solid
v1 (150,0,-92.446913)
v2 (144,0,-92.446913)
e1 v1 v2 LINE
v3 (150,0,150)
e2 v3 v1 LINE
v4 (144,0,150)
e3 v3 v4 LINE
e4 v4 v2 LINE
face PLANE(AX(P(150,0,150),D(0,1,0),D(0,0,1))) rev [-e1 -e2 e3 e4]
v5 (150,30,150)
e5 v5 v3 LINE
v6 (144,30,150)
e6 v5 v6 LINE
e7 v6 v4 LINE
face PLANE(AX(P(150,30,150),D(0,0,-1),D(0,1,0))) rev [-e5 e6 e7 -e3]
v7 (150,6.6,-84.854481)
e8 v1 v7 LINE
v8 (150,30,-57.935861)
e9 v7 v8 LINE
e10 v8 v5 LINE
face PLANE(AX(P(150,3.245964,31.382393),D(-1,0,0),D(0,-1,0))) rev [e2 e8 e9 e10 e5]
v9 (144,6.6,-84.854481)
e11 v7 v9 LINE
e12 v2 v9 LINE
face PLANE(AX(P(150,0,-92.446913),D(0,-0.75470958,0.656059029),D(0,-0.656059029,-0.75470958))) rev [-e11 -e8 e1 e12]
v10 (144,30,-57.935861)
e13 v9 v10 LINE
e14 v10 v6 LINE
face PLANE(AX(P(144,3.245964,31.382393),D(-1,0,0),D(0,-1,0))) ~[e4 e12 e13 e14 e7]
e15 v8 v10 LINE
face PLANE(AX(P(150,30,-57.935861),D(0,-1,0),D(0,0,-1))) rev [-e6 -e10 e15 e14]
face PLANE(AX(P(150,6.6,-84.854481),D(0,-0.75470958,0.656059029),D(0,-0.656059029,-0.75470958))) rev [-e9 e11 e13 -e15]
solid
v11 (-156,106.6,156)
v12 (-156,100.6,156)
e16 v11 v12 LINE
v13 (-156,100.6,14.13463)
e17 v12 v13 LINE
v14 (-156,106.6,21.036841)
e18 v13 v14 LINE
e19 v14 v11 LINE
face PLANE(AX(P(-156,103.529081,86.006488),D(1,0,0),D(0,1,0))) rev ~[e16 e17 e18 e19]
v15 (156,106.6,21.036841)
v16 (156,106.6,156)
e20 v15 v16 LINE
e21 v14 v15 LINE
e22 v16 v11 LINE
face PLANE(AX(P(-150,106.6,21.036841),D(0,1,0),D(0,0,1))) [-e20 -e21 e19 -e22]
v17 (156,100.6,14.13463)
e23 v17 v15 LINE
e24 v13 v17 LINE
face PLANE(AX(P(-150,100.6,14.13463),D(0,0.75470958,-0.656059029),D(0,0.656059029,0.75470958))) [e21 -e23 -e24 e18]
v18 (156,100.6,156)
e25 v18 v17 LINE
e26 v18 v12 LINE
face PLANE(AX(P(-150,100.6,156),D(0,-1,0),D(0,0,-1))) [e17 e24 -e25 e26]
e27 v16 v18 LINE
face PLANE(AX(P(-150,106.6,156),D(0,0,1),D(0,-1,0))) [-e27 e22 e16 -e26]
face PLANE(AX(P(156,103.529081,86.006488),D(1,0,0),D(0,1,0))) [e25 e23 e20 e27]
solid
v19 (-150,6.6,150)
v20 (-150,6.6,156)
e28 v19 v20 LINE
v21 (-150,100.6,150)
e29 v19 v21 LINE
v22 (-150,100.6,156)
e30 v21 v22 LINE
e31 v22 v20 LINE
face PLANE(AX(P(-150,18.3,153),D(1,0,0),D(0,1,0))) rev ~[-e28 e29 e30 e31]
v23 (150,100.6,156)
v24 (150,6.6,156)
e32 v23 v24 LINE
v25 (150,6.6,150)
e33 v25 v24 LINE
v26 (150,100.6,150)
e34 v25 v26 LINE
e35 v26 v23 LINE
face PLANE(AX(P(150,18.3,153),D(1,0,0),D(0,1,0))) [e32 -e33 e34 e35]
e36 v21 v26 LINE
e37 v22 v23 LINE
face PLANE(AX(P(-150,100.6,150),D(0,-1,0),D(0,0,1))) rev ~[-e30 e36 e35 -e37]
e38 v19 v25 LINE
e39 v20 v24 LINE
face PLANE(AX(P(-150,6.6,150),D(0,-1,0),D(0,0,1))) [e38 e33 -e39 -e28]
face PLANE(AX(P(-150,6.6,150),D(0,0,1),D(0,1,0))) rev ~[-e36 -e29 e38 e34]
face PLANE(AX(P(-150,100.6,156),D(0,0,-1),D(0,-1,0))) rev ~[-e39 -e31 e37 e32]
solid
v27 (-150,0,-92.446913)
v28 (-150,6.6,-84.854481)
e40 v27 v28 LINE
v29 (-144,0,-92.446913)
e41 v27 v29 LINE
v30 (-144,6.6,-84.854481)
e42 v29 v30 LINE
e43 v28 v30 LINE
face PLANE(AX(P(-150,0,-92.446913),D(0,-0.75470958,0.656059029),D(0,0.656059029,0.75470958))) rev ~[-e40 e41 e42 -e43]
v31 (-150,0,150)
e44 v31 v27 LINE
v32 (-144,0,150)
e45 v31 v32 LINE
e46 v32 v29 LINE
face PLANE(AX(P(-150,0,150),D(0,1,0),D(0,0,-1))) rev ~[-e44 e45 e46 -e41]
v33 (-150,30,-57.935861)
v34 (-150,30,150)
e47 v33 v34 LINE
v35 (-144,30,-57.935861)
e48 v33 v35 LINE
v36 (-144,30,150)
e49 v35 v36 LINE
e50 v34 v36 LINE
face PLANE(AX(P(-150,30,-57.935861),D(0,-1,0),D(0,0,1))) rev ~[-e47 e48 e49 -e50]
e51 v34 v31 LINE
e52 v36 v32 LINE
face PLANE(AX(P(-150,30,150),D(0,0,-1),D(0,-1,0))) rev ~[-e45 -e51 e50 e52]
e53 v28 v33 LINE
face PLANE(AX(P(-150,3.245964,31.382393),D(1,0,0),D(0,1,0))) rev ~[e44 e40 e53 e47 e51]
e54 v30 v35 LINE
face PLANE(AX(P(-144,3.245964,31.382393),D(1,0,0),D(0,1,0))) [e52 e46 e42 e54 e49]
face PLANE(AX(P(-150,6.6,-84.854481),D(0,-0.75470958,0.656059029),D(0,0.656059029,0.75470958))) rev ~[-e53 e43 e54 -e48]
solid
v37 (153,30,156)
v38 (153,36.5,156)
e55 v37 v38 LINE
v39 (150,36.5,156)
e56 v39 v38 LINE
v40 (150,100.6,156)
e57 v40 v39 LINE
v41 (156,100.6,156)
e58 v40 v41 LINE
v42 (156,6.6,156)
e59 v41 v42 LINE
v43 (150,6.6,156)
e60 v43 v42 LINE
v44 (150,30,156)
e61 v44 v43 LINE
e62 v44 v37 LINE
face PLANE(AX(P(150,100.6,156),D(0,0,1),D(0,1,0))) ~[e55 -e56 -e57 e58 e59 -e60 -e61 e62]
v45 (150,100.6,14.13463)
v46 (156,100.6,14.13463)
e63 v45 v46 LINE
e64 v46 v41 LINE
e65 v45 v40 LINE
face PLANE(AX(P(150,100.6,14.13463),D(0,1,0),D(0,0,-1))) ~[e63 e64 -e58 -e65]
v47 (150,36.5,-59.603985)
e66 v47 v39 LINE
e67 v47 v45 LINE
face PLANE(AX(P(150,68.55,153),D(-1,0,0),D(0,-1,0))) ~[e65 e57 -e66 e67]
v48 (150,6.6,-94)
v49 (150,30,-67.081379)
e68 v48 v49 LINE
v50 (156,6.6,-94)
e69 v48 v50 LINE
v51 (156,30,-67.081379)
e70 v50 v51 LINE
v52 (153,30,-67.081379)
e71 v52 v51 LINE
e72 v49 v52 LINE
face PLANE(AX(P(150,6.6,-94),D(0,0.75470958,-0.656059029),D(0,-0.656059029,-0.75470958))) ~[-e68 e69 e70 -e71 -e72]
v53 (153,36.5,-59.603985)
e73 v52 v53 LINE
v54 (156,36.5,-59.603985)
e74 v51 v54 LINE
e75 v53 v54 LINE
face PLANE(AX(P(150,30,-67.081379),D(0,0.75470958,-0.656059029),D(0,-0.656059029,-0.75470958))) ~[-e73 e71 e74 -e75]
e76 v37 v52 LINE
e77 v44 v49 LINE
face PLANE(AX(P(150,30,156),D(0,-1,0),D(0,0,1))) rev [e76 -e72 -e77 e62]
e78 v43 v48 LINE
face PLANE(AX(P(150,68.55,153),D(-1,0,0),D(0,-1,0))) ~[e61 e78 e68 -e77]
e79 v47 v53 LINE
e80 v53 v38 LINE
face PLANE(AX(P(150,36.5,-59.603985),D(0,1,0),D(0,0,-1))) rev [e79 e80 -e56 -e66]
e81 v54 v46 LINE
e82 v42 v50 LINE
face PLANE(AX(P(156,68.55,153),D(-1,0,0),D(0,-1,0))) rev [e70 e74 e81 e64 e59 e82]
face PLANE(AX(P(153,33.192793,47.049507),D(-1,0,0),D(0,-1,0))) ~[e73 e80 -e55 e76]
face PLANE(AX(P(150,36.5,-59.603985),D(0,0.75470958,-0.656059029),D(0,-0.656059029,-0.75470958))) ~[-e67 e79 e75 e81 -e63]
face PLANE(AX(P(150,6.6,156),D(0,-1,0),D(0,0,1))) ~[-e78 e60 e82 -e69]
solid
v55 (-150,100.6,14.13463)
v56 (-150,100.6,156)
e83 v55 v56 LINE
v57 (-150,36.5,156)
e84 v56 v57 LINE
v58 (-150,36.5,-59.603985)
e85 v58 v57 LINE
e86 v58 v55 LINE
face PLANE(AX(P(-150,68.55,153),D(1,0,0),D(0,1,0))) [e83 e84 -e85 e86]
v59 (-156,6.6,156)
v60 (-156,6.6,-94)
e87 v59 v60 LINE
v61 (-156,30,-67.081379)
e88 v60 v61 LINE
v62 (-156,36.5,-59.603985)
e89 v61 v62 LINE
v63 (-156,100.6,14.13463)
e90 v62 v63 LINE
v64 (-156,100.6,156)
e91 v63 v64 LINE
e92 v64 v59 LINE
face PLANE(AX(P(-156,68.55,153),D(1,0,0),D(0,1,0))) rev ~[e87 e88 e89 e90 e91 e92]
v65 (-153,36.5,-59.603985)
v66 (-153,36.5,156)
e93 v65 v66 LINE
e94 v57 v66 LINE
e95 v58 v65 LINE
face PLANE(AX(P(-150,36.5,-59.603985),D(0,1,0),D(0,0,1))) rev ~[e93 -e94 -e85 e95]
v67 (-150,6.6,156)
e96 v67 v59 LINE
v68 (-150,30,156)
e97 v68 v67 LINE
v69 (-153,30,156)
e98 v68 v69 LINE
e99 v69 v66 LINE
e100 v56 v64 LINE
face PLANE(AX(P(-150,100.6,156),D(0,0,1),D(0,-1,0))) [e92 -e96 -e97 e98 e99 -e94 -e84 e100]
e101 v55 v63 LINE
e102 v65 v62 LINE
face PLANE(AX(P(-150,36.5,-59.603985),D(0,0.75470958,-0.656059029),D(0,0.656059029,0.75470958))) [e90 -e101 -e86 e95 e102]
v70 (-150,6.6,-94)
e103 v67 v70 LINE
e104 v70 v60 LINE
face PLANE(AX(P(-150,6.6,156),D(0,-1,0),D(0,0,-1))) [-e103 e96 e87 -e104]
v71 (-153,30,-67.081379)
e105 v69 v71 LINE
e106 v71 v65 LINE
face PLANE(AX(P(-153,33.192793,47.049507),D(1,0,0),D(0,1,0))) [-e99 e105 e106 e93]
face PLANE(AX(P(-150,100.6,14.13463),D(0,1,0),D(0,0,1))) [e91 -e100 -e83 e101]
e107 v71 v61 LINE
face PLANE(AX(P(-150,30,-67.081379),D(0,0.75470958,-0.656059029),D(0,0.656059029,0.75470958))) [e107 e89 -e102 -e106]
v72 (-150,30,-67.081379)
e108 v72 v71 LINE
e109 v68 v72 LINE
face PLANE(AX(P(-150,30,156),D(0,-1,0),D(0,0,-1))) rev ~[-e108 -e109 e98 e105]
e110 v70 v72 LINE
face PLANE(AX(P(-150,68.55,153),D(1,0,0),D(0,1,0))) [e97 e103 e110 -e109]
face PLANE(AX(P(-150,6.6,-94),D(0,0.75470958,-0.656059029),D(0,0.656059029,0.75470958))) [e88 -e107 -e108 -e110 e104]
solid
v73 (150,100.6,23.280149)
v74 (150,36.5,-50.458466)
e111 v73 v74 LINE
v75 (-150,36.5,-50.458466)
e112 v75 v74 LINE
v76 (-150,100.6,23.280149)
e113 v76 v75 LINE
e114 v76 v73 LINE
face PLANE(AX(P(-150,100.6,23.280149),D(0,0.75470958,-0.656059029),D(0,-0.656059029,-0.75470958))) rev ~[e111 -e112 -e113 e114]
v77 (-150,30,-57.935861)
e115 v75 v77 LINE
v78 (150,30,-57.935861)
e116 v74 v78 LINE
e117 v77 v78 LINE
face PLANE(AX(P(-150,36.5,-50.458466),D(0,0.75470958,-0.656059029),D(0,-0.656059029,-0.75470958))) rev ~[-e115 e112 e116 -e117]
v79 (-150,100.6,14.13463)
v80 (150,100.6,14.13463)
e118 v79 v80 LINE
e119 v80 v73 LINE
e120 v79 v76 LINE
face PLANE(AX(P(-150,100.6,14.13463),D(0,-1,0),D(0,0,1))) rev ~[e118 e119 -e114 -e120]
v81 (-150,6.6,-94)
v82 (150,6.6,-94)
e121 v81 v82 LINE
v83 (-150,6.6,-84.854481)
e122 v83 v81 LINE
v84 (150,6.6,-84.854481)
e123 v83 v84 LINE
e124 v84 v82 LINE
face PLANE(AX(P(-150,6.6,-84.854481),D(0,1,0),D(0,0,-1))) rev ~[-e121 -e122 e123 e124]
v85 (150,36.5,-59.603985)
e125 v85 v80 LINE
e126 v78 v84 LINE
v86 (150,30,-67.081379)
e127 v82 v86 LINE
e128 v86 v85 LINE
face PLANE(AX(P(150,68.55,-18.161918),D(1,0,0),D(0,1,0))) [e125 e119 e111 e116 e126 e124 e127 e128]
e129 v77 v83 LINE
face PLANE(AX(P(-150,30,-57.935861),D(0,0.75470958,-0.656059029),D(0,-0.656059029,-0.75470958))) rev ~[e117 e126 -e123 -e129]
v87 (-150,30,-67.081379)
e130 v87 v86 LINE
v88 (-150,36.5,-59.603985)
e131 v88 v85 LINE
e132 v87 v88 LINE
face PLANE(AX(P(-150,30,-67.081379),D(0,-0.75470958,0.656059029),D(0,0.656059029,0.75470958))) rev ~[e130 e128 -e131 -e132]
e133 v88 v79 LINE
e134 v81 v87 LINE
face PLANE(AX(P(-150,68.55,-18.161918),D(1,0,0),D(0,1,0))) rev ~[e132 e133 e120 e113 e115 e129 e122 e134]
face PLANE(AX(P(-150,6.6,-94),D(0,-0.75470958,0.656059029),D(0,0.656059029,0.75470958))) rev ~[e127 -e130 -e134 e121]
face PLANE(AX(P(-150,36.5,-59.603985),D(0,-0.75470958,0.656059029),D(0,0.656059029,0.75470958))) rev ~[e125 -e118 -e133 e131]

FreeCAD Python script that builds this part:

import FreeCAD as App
import Part
import Sketcher
from FreeCAD import Vector
Q = App.Units.Quantity


def add_polygon(sketch, points):
    """Adds a closed chain of lines whose ends are joined by coincident constraints."""
    first, n = sketch.GeometryCount, len(points)
    for a, b in zip(points, points[1:] + points[:1]):
        sketch.addGeometry(Part.LineSegment(App.Vector(*a, 0), App.Vector(*b, 0)), False)
    for i in range(n):
        sketch.addConstraint(Sketcher.Constraint("Coincident", first + i, 2, first + (i + 1) % n, 1))

doc = App.newDocument("Part")
body = doc.addObject("PartDesign::Body", "Body")

# Sketch on YZ plane
sketch1 = body.newObject("Sketcher::SketchObject", "Sketch")
sketch1.AttachmentSupport = (doc.getObject("YZ_Plane"), [""])
sketch1.MapMode = "FlatFace"
sketch1.AttachmentOffset = App.Placement(Vector(0, 0, -150), App.Rotation())
add_polygon(sketch1, [(6.6, -94), (30, -67.081379), (36.5, -59.603985), (100.6, 14.13463), (100.6, 156), (6.6, 156)])  # lines 0-5
sketch1.addConstraint([
    Sketcher.Constraint("Vertical", 3),
    Sketcher.Constraint("Horizontal", 4),
    Sketcher.Constraint("Vertical", 5),
    Sketcher.Constraint("Parallel", 0, 1),
    Sketcher.Constraint("Parallel", 1, 2),
    Sketcher.Constraint("DistanceX", 4, 2, 4, 1, 94.0),
    Sketcher.Constraint("DistanceY", 5, 2, 5, 1, 250.0),
    Sketcher.Constraint("Angle", 0, Q("49 deg")),
    Sketcher.Constraint("DistanceX", -1, 1, 0, 2, 30.0),
    Sketcher.Constraint("DistanceY", -1, 1, 3, 2, 156.0),
    Sketcher.Constraint("DistanceX", -1, 1, 1, 2, 36.5),
    Sketcher.Constraint("DistanceX", -1, 1, 2, 2, 100.6),
])
pad1 = body.newObject("PartDesign::Pad", "Pad")
pad1.Profile = sketch1
pad1.Length = 6
pad1.Reversed = True

# Sketch on YZ plane
sketch2 = body.newObject("Sketcher::SketchObject", "Sketch001")
sketch2.AttachmentSupport = (doc.getObject("YZ_Plane"), [""])
sketch2.MapMode = "FlatFace"
sketch2.AttachmentOffset = App.Placement(Vector(0, 0, -150), App.Rotation())
add_polygon(sketch2, [(36.5, 156), (30, 156), (30, -67.081379), (36.5, -59.603985)])  # lines 0-3
sketch2.addConstraint([
    Sketcher.Constraint("Horizontal", 0),
    Sketcher.Constraint("Vertical", 1),
    Sketcher.Constraint("Vertical", 3),
    Sketcher.Constraint("Angle", 2, Q("49 deg")),
    Sketcher.Constraint("DistanceX", 0, 2, 0, 1, 6.5),
    Sketcher.Constraint("DistanceX", -1, 1, 0, 2, 30.0),
    Sketcher.Constraint("DistanceY", -1, 1, 0, 2, 156.0),
    Sketcher.Constraint("DistanceY", 1, 2, 1, 1, 223.081379),
])
pocket1 = body.newObject("PartDesign::Pocket", "Pocket")
pocket1.Profile = sketch2
pocket1.Length = 3
body2 = doc.addObject("PartDesign::Body", "Body001")

# Sketch on YZ plane
sketch3 = body2.newObject("Sketcher::SketchObject", "Sketch002")
sketch3.AttachmentSupport = (doc.getObject("YZ_Plane001"), [""])
sketch3.MapMode = "FlatFace"
sketch3.AttachmentOffset = App.Placement(Vector(0, 0, -150), App.Rotation())
add_polygon(sketch3, [(6.6, -84.854481), (30, -57.935861), (30, 150), (0, 150), (0, -92.446913)])  # lines 0-4
sketch3.addConstraint([
    Sketcher.Constraint("Vertical", 1),
    Sketcher.Constraint("Horizontal", 2),
    Sketcher.Constraint("Vertical", 3),
    Sketcher.Constraint("PointOnObject", 2, 2, -2),
    Sketcher.Constraint("Parallel", 0, 4),
    Sketcher.Constraint("DistanceX", 2, 2, 2, 1, 30.0),
    Sketcher.Constraint("Angle", 0, Q("49 deg")),
    Sketcher.Constraint("DistanceY", -1, 1, 1, 2, 150.0),
    Sketcher.Constraint("DistanceX", -1, 1, 4, 2, 6.6),
    Sketcher.Constraint("DistanceY", 1, 1, 1, 2, 207.935861),
])
pad2 = body2.newObject("PartDesign::Pad", "Pad001")
pad2.Profile = sketch3
pad2.Length = 6
body3 = doc.addObject("PartDesign::Body", "Body002")
doc.recompute()

mirroring = doc.addObject("Part::Mirroring", "Mirroring")
mirroring.Source = body
mirroring.Base = Vector(0, 0, 0)
mirroring.Normal = Vector(1, 0, 0)
body3.BaseFeature = mirroring
doc.recompute()
body4 = doc.addObject("PartDesign::Body", "Body003")
doc.recompute()

mirroring2 = doc.addObject("Part::Mirroring", "Mirroring001")
mirroring2.Source = body2
mirroring2.Base = Vector(0, 0, 0)
mirroring2.Normal = Vector(1, 0, 0)
body4.BaseFeature = mirroring2
doc.recompute()
body5 = doc.addObject("PartDesign::Body", "Body004")

# Sketch on YZ plane
sketch4 = body5.newObject("Sketcher::SketchObject", "Sketch003")
sketch4.AttachmentSupport = (doc.getObject("YZ_Plane004"), [""])
sketch4.MapMode = "FlatFace"
sketch4.AttachmentOffset = App.Placement(Vector(0, 0, -150), App.Rotation())
add_polygon(sketch4, [(100.6, 156), (100.6, 14.13463), (106.6, 21.036841), (106.6, 156)])  # lines 0-3
sketch4.addConstraint([
    Sketcher.Constraint("Vertical", 0),
    Sketcher.Constraint("Vertical", 2),
    Sketcher.Constraint("Horizontal", 3),
    Sketcher.Constraint("DistanceX", 3, 2, 3, 1, 6.0),
    Sketcher.Constraint("Angle", 1, Q("49 deg")),
    Sketcher.Constraint("DistanceY", -1, 1, 2, 2, 156.0),
    Sketcher.Constraint("DistanceX", -1, 1, 0, 2, 100.6),
    Sketcher.Constraint("DistanceY", 0, 2, 0, 1, 141.86537),
])
pad3 = body5.newObject("PartDesign::Pad", "Pad002")
pad3.Profile = sketch4
pad3.Type = "TwoLengths"
pad3.Length = 306
pad3.Length2 = 6
body6 = doc.addObject("PartDesign::Body", "Body005")

# Sketch on YZ plane
sketch5 = body6.newObject("Sketcher::SketchObject", "Sketch004")
sketch5.AttachmentSupport = (doc.getObject("YZ_Plane005"), [""])
sketch5.MapMode = "FlatFace"
sketch5.AttachmentOffset = App.Placement(Vector(0, 0, -150), App.Rotation())
add_polygon(sketch5, [(100.6, 23.280149), (36.5, -50.458466), (30, -57.935861), (6.6, -84.854481), (6.6, -94), (30, -67.081379), (36.5, -59.603985), (100.6, 14.13463)])  # lines 0-7
sketch5.addConstraint([
    Sketcher.Constraint("Vertical", 3),
    Sketcher.Constraint("Vertical", 7),
    Sketcher.Constraint("Parallel", 0, 1),
    Sketcher.Constraint("Parallel", 1, 2),
    Sketcher.Constraint("Parallel", 2, 4),
    Sketcher.Constraint("Parallel", 4, 5),
    Sketcher.Constraint("Parallel", 5, 6),
    Sketcher.Constraint("Vertical", 1, 2, 4, 2),
    Sketcher.Constraint("Vertical", 0, 2, 5, 2),
    Sketcher.Constraint("Angle", 0, Q("-131 deg")),
    Sketcher.Constraint("DistanceX", -1, 1, 1, 2, 30.0),
    Sketcher.Constraint("DistanceY", 3, 2, -1, 1, 94.0),
    Sketcher.Constraint("DistanceX", 2, 2, 6, 2, 94.0),
    Sketcher.Constraint("DistanceX", -1, 1, 0, 2, 36.5),
    Sketcher.Constraint("DistanceX", -1, 1, 2, 2, 6.6),
    Sketcher.Constraint("DistanceY", 3, 2, 3, 1, 9.145519),
])
pad4 = body6.newObject("PartDesign::Pad", "Pad003")
pad4.Profile = sketch5
pad4.Length = 300
body7 = doc.addObject("PartDesign::Body", "Body006")

# Sketch on YZ plane
sketch6 = body7.newObject("Sketcher::SketchObject", "Sketch005")
sketch6.AttachmentSupport = (doc.getObject("YZ_Plane006"), [""])
sketch6.MapMode = "FlatFace"
sketch6.AttachmentOffset = App.Placement(Vector(0, 0, -150), App.Rotation())
add_polygon(sketch6, [(6.6, 156), (6.6, 150), (100.6, 150), (100.6, 156)])  # lines 0-3
sketch6.addConstraint([
    Sketcher.Constraint("Vertical", 0),
    Sketcher.Constraint("Horizontal", 1),
    Sketcher.Constraint("Vertical", 2),
    Sketcher.Constraint("Horizontal", 3),
    Sketcher.Constraint("DistanceX", 1, 1, 1, 2, 94.0),
    Sketcher.Constraint("DistanceY", 0, 2, 0, 1, 6.0),
    Sketcher.Constraint("DistanceY", -1, 1, 0, 2, 150.0),
    Sketcher.Constraint("DistanceX", -1, 1, 0, 2, 6.6),
])
pad5 = body7.newObject("PartDesign::Pad", "Pad004")
pad5.Profile = sketch6
pad5.Length = 300
mirroring.Visibility = False
mirroring2.Visibility = False

doc.recompute()
